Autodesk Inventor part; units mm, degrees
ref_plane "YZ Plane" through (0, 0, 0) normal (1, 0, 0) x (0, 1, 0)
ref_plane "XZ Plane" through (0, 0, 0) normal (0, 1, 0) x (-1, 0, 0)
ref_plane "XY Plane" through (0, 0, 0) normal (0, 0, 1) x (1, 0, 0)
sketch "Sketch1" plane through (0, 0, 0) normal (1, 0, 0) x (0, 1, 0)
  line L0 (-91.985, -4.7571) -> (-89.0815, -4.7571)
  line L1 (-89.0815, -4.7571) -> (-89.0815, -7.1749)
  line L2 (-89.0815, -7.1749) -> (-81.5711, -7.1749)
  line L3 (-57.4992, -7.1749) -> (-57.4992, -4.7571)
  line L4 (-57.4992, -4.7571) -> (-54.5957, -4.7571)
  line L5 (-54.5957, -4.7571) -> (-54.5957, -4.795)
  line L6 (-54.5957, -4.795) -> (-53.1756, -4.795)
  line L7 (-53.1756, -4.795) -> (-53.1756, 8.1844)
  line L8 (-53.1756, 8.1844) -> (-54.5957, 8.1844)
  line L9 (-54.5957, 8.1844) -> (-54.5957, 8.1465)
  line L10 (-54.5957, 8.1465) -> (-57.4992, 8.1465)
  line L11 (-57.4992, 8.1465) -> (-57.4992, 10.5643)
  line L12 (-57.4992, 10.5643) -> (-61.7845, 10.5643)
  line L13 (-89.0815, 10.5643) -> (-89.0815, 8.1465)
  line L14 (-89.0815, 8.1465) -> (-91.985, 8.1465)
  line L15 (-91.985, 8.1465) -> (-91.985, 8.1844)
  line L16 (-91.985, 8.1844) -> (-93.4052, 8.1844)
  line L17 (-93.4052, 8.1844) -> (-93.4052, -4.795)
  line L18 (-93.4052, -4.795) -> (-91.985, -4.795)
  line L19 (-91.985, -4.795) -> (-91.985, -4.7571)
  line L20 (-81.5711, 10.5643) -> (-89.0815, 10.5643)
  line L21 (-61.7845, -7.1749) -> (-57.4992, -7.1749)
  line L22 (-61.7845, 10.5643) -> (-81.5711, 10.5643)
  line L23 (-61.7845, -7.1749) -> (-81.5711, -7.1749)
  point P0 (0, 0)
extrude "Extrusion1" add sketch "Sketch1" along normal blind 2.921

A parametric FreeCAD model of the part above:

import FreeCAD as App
import Part
import Sketcher
Q = App.Units.Quantity

doc = App.newDocument("Part")
body = doc.addObject("PartDesign::Body", "Body")

sketch1 = doc.addObject("Sketcher::SketchObject", "Sketch")
body.addObject(sketch1)
sketch1.AttachmentSupport = (doc.YZ_Plane, [""])
sketch1.MapMode = "FlatFace"
sketch1.addGeometry(Part.LineSegment(App.Vector(-91.985, -4.795, 0), App.Vector(-91.985, -4.7571, 0)), False)
sketch1.addGeometry(Part.LineSegment(App.Vector(-91.985, -4.7571, 0), App.Vector(-89.0815, -4.7571, 0)), False)
sketch1.addGeometry(Part.LineSegment(App.Vector(-89.0815, -4.7571, 0), App.Vector(-89.0815, -7.1749, 0)), False)
sketch1.addGeometry(Part.LineSegment(App.Vector(-89.0815, -7.1749, 0), App.Vector(-57.4992, -7.1749, 0)), False)
sketch1.addGeometry(Part.LineSegment(App.Vector(-57.4992, -7.1749, 0), App.Vector(-57.4992, -4.7571, 0)), False)
sketch1.addGeometry(Part.LineSegment(App.Vector(-57.4992, -4.7571, 0), App.Vector(-54.5957, -4.7571, 0)), False)
sketch1.addGeometry(Part.LineSegment(App.Vector(-54.5957, -4.7571, 0), App.Vector(-54.5957, -4.795, 0)), False)
sketch1.addGeometry(Part.LineSegment(App.Vector(-54.5957, -4.795, 0), App.Vector(-53.1756, -4.795, 0)), False)
sketch1.addGeometry(Part.LineSegment(App.Vector(-53.1756, -4.795, 0), App.Vector(-53.1756, 8.1844, 0)), False)
sketch1.addGeometry(Part.LineSegment(App.Vector(-53.1756, 8.1844, 0), App.Vector(-54.5957, 8.1844, 0)), False)
sketch1.addGeometry(Part.LineSegment(App.Vector(-54.5957, 8.1844, 0), App.Vector(-54.5957, 8.1465, 0)), False)
sketch1.addGeometry(Part.LineSegment(App.Vector(-54.5957, 8.1465, 0), App.Vector(-57.4992, 8.1465, 0)), False)
sketch1.addGeometry(Part.LineSegment(App.Vector(-57.4992, 8.1465, 0), App.Vector(-57.4992, 10.5643, 0)), False)
sketch1.addGeometry(Part.LineSegment(App.Vector(-57.4992, 10.5643, 0), App.Vector(-89.0815, 10.5643, 0)), False)
sketch1.addGeometry(Part.LineSegment(App.Vector(-89.0815, 10.5643, 0), App.Vector(-89.0815, 8.1465, 0)), False)
sketch1.addGeometry(Part.LineSegment(App.Vector(-89.0815, 8.1465, 0), App.Vector(-91.985, 8.1465, 0)), False)
sketch1.addGeometry(Part.LineSegment(App.Vector(-91.985, 8.1465, 0), App.Vector(-91.985, 8.1844, 0)), False)
sketch1.addGeometry(Part.LineSegment(App.Vector(-91.985, 8.1844, 0), App.Vector(-93.4052, 8.1844, 0)), False)
sketch1.addGeometry(Part.LineSegment(App.Vector(-93.4052, 8.1844, 0), App.Vector(-93.4052, -4.795, 0)), False)
sketch1.addGeometry(Part.LineSegment(App.Vector(-93.4052, -4.795, 0), App.Vector(-91.985, -4.795, 0)), False)
sketch1.addConstraint(Sketcher.Constraint("Coincident", 0, 2, 1, 1))
sketch1.addConstraint(Sketcher.Constraint("Coincident", 1, 2, 2, 1))
sketch1.addConstraint(Sketcher.Constraint("Coincident", 2, 2, 3, 1))
sketch1.addConstraint(Sketcher.Constraint("Coincident", 3, 2, 4, 1))
sketch1.addConstraint(Sketcher.Constraint("Coincident", 4, 2, 5, 1))
sketch1.addConstraint(Sketcher.Constraint("Coincident", 5, 2, 6, 1))
sketch1.addConstraint(Sketcher.Constraint("Coincident", 6, 2, 7, 1))
sketch1.addConstraint(Sketcher.Constraint("Coincident", 7, 2, 8, 1))
sketch1.addConstraint(Sketcher.Constraint("Coincident", 8, 2, 9, 1))
sketch1.addConstraint(Sketcher.Constraint("Coincident", 9, 2, 10, 1))
sketch1.addConstraint(Sketcher.Constraint("Coincident", 10, 2, 11, 1))
sketch1.addConstraint(Sketcher.Constraint("Coincident", 11, 2, 12, 1))
sketch1.addConstraint(Sketcher.Constraint("Coincident", 12, 2, 13, 1))
sketch1.addConstraint(Sketcher.Constraint("Coincident", 13, 2, 14, 1))
sketch1.addConstraint(Sketcher.Constraint("Coincident", 14, 2, 15, 1))
sketch1.addConstraint(Sketcher.Constraint("Coincident", 15, 2, 16, 1))
sketch1.addConstraint(Sketcher.Constraint("Coincident", 16, 2, 17, 1))
sketch1.addConstraint(Sketcher.Constraint("Coincident", 17, 2, 18, 1))
sketch1.addConstraint(Sketcher.Constraint("Coincident", 18, 2, 19, 1))
sketch1.addConstraint(Sketcher.Constraint("Coincident", 19, 2, 0, 1))
sketch1.addConstraint(Sketcher.Constraint("Vertical", 0))
sketch1.addConstraint(Sketcher.Constraint("Horizontal", 1))
sketch1.addConstraint(Sketcher.Constraint("Vertical", 2))
sketch1.addConstraint(Sketcher.Constraint("Horizontal", 3))
sketch1.addConstraint(Sketcher.Constraint("Vertical", 4))
sketch1.addConstraint(Sketcher.Constraint("Horizontal", 5))
sketch1.addConstraint(Sketcher.Constraint("Vertical", 6))
sketch1.addConstraint(Sketcher.Constraint("Horizontal", 7))
sketch1.addConstraint(Sketcher.Constraint("Vertical", 8))
sketch1.addConstraint(Sketcher.Constraint("Horizontal", 9))
sketch1.addConstraint(Sketcher.Constraint("Vertical", 10))
sketch1.addConstraint(Sketcher.Constraint("Horizontal", 11))
sketch1.addConstraint(Sketcher.Constraint("Vertical", 12))
sketch1.addConstraint(Sketcher.Constraint("Horizontal", 13))
sketch1.addConstraint(Sketcher.Constraint("Vertical", 14))
sketch1.addConstraint(Sketcher.Constraint("Horizontal", 15))
sketch1.addConstraint(Sketcher.Constraint("Vertical", 16))
sketch1.addConstraint(Sketcher.Constraint("Horizontal", 17))
sketch1.addConstraint(Sketcher.Constraint("Vertical", 18))
sketch1.addConstraint(Sketcher.Constraint("Horizontal", 19))
sketch1.addConstraint(Sketcher.Constraint("Horizontal", 1, 2, 4, 2))
sketch1.addConstraint(Sketcher.Constraint("Horizontal", 11, 2, 14, 2))
sketch1.addConstraint(Sketcher.Constraint("Horizontal", 9, 2, 16, 2))
sketch1.addConstraint(Sketcher.Constraint("Horizontal", 7, 2, 18, 2))
sketch1.addConstraint(Sketcher.Constraint("Vertical", 6, 2, 9, 2))
sketch1.addConstraint(Sketcher.Constraint("Vertical", 4, 2, 11, 2))
sketch1.addConstraint(Sketcher.Constraint("Vertical", 2, 2, 13, 2))
sketch1.addConstraint(Sketcher.Constraint("Vertical", 0, 2, 15, 2))
sketch1.addConstraint(Sketcher.Constraint("Equal", 1, 5))
sketch1.addConstraint(Sketcher.Constraint("Equal", 9, 17))
sketch1.addConstraint(Sketcher.Constraint("Equal", 6, 10))
sketch1.addConstraint(Sketcher.Constraint("Equal", 4, 12))
sketch1.addConstraint(Sketcher.Constraint("DistanceY", 8, 1, 8, 2, Q("0.511 in")))
sketch1.addConstraint(Sketcher.Constraint("DistanceX", 1, 1, 1, 2, Q("0.1143 in")))
sketch1.addConstraint(Sketcher.Constraint("DistanceX", 3, 1, 3, 2, Q("1.2434 in")))
sketch1.addConstraint(Sketcher.Constraint("DistanceX", 7, 1, 7, 2, Q("0.0559 in")))
sketch1.addConstraint(Sketcher.Constraint("DistanceY", 0, 1, 0, 2, Q("0.0015 in")))
sketch1.addConstraint(Sketcher.Constraint("DistanceY", 2, 2, 2, 1, Q("0.0952 in")))
sketch1.addConstraint(Sketcher.Constraint("DistanceX", 0, 2, -1, 1, 91.985))
sketch1.addConstraint(Sketcher.Constraint("DistanceY", 0, 2, -1, 1, 4.757))
pad1 = doc.addObject("PartDesign::Pad", "Pad")
body.addObject(pad1)
pad1.Profile = sketch1
pad1.Length = Q("0.115 in")

doc.recompute()
